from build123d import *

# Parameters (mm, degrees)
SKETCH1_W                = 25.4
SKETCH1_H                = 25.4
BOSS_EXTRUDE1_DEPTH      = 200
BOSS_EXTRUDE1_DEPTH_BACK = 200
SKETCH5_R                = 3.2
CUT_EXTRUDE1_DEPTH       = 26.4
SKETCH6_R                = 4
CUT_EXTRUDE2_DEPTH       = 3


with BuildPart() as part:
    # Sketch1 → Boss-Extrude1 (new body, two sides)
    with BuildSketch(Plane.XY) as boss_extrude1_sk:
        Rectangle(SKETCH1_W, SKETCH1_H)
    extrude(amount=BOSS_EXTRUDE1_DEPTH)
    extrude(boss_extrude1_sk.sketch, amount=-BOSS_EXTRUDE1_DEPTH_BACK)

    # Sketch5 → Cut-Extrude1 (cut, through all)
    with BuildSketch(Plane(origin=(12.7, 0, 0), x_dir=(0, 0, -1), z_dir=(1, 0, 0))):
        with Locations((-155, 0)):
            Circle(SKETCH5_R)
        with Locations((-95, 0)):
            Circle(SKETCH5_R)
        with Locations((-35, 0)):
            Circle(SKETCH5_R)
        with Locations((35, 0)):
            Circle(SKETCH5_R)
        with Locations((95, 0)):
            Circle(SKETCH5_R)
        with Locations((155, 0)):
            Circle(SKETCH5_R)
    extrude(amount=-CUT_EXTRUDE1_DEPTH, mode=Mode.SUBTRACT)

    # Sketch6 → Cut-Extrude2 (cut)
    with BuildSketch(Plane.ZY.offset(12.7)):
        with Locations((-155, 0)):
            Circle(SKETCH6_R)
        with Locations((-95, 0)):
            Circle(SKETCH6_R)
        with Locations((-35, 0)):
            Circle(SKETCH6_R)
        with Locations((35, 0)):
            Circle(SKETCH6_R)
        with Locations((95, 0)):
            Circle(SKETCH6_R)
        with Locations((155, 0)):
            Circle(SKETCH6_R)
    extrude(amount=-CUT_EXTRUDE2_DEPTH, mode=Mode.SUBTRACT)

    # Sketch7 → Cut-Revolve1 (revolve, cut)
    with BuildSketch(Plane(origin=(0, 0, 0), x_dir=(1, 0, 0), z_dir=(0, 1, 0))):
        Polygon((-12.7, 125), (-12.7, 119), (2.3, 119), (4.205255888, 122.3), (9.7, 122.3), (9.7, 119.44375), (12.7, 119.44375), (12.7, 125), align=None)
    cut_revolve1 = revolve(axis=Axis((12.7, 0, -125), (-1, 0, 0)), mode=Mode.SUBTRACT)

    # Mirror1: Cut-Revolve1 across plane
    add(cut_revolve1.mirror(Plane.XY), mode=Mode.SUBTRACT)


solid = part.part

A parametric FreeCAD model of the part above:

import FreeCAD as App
import Part
import Sketcher

V = App.Vector
Q = App.Units.Quantity


def add_polygon(sketch, points):
    """Adds a closed chain of lines whose ends are joined by coincident constraints."""
    first, n = sketch.GeometryCount, len(points)
    for a, b in zip(points, points[1:] + points[:1]):
        sketch.addGeometry(Part.LineSegment(App.Vector(*a, 0), App.Vector(*b, 0)), False)
    for i in range(n):
        sketch.addConstraint(Sketcher.Constraint("Coincident", first + i, 2, first + (i + 1) % n, 1))

doc = App.newDocument("Part")
params = doc.addObject("Spreadsheet::Sheet", "Params")
for row, (alias, value) in enumerate([
    ("sketch1_width", "25.4 mm"),
    ("pad1_length", "200 mm"),
    ("pad1_length2", "200 mm"),
    ("sketch2_diameter", "6.4 mm"),
    ("sketch3_diameter", "8 mm"),
    ("pocket2_length", "3 mm"),
    ("sketch4_width", "15 mm"),
    ("sketch4_width2", "3 mm"),
    ("sketch4_height", "6 mm"),
    ("sketch4_width3", "25.4 mm"),
    ("groove_angle", "360 deg"),
], start=1):
    params.set(f"A{row}", alias)
    params.set(f"B{row}", "=" + value)
    params.setAlias(f"B{row}", alias)

body = doc.addObject("PartDesign::Body", "Body")

# Sketch on XY plane
sketch1 = body.newObject("Sketcher::SketchObject", "Sketch")
sketch1.AttachmentSupport = (doc.getObject("XY_Plane"), [""])
sketch1.MapMode = "FlatFace"
add_polygon(sketch1, [(-12.7, 12.7), (-12.7, -12.7), (12.7, -12.7), (12.7, 12.7)])  # lines 0-3
sketch1.addConstraint(Sketcher.Constraint("Vertical", 0))
sketch1.addConstraint(Sketcher.Constraint("Horizontal", 1))
sketch1.addConstraint(Sketcher.Constraint("Vertical", 2))
sketch1.addConstraint(Sketcher.Constraint("Horizontal", 3))
sketch1.addConstraint(Sketcher.Constraint("Symmetric", 0, 2, 2, 2, -1, 1))
sketch1.addConstraint(Sketcher.Constraint("Equal", 3, 0))
sketch1.addConstraint(Sketcher.Constraint("DistanceX", 1, 1, 1, 2, Q("25.4 mm")))
sketch1.setExpression("Constraints[10]", "Params.sketch1_width")
pad1 = body.newObject("PartDesign::Pad", "Pad")
pad1.Profile = sketch1
pad1.Type = "TwoLengths"
pad1.setExpression("Length", "Params.pad1_length")
pad1.setExpression("Length2", "Params.pad1_length2")

# Sketch on YZ plane
sketch2 = body.newObject("Sketcher::SketchObject", "Sketch001")
sketch2.AttachmentSupport = (doc.getObject("YZ_Plane"), [""])
sketch2.MapMode = "FlatFace"
sketch2.AttachmentOffset = App.Placement(V(0, 0, 12.7), App.Rotation())
sketch2.addGeometry(Part.Circle(V(0, 155, 0), V(0, 0, 1), 3.2), False)
sketch2.addGeometry(Part.Circle(V(0, 95, 0), V(0, 0, 1), 3.2), False)
sketch2.addGeometry(Part.Circle(V(0, 35, 0), V(0, 0, 1), 3.2), False)
sketch2.addGeometry(Part.Circle(V(0, -35, 0), V(0, 0, 1), 3.2), False)
sketch2.addGeometry(Part.Circle(V(0, -95, 0), V(0, 0, 1), 3.2), False)
sketch2.addGeometry(Part.Circle(V(0, -155, 0), V(0, 0, 1), 3.2), False)
sketch2.addConstraint(Sketcher.Constraint("Equal", 0, 1))
sketch2.addConstraint(Sketcher.Constraint("Equal", 1, 2))
sketch2.addConstraint(Sketcher.Constraint("Equal", 2, 3))
sketch2.addConstraint(Sketcher.Constraint("Equal", 3, 4))
sketch2.addConstraint(Sketcher.Constraint("Equal", 4, 5))
sketch2.addConstraint(Sketcher.Constraint("Symmetric", 2, 3, 3, 3, -1, 1))
sketch2.addConstraint(Sketcher.Constraint("Symmetric", 1, 3, 4, 3, -1, 1))
sketch2.addConstraint(Sketcher.Constraint("Symmetric", 0, 3, 5, 3, -1, 1))
sketch2.addConstraint(Sketcher.Constraint("PointOnObject", 0, 3, -2))
sketch2.addConstraint(Sketcher.Constraint("PointOnObject", 1, 3, -2))
sketch2.addConstraint(Sketcher.Constraint("PointOnObject", 2, 3, -2))
sketch2.addConstraint(Sketcher.Constraint("Diameter", 0, Q("6.4 mm")))
sketch2.addConstraint(Sketcher.Constraint("DistanceY", -1, 1, 0, 3, Q("155 mm")))
sketch2.addConstraint(Sketcher.Constraint("DistanceY", -1, 1, 1, 3, Q("95 mm")))
sketch2.addConstraint(Sketcher.Constraint("DistanceY", -1, 1, 2, 3, Q("35 mm")))
sketch2.setExpression("Constraints[11]", "Params.sketch2_diameter")
pocket1 = body.newObject("PartDesign::Pocket", "Pocket")
pocket1.Profile = sketch2
pocket1.Type = "ThroughAll"

# Sketch on YZ plane
sketch3 = body.newObject("Sketcher::SketchObject", "Sketch002")
sketch3.AttachmentSupport = (doc.getObject("YZ_Plane"), [""])
sketch3.MapMode = "FlatFace"
sketch3.AttachmentOffset = App.Placement(V(0, 0, -12.7), App.Rotation())
sketch3.addGeometry(Part.Circle(V(0, -155, 0), V(0, 0, 1), 4), False)
sketch3.addGeometry(Part.Circle(V(0, -95, 0), V(0, 0, 1), 4), False)
sketch3.addGeometry(Part.Circle(V(0, -35, 0), V(0, 0, 1), 4), False)
sketch3.addGeometry(Part.Circle(V(0, 35, 0), V(0, 0, 1), 4), False)
sketch3.addGeometry(Part.Circle(V(0, 95, 0), V(0, 0, 1), 4), False)
sketch3.addGeometry(Part.Circle(V(0, 155, 0), V(0, 0, 1), 4), False)
sketch3.addConstraint(Sketcher.Constraint("Equal", 0, 1))
sketch3.addConstraint(Sketcher.Constraint("Equal", 1, 2))
sketch3.addConstraint(Sketcher.Constraint("Equal", 2, 3))
sketch3.addConstraint(Sketcher.Constraint("Equal", 3, 4))
sketch3.addConstraint(Sketcher.Constraint("Equal", 4, 5))
sketch3.addConstraint(Sketcher.Constraint("Symmetric", 2, 3, 3, 3, -1, 1))
sketch3.addConstraint(Sketcher.Constraint("Symmetric", 1, 3, 4, 3, -1, 1))
sketch3.addConstraint(Sketcher.Constraint("Symmetric", 0, 3, 5, 3, -1, 1))
sketch3.addConstraint(Sketcher.Constraint("PointOnObject", 0, 3, -2))
sketch3.addConstraint(Sketcher.Constraint("PointOnObject", 1, 3, -2))
sketch3.addConstraint(Sketcher.Constraint("PointOnObject", 2, 3, -2))
sketch3.addConstraint(Sketcher.Constraint("Diameter", 0, Q("8 mm")))
sketch3.addConstraint(Sketcher.Constraint("DistanceY", 0, 3, -1, 1, Q("155 mm")))
sketch3.addConstraint(Sketcher.Constraint("DistanceY", 1, 3, -1, 1, Q("95 mm")))
sketch3.addConstraint(Sketcher.Constraint("DistanceY", 2, 3, -1, 1, Q("35 mm")))
sketch3.setExpression("Constraints[11]", "Params.sketch3_diameter")
pocket2 = body.newObject("PartDesign::Pocket", "Pocket001")
pocket2.Profile = sketch3
pocket2.setExpression("Length", "Params.pocket2_length")
pocket2.Reversed = True

# Sketch on XZ plane
sketch4 = body.newObject("Sketcher::SketchObject", "Sketch003")
sketch4.AttachmentSupport = (doc.getObject("XZ_Plane"), [""])
sketch4.MapMode = "FlatFace"
add_polygon(sketch4, [(-12.7, -125), (-12.7, -119), (2.3, -119), (4.205256, -122.3), (9.7, -122.3), (9.7, -119.44375), (12.7, -119.44375), (12.7, -125)])  # lines 0-7
sketch4.addGeometry(Part.LineSegment(V(12.7, -125, 0), V(-12.7, -125, 0)), True)  # axis
sketch4.addConstraint(Sketcher.Constraint("Vertical", 0))
sketch4.addConstraint(Sketcher.Constraint("Horizontal", 1))
sketch4.addConstraint(Sketcher.Constraint("Horizontal", 3))
sketch4.addConstraint(Sketcher.Constraint("Vertical", 4))
sketch4.addConstraint(Sketcher.Constraint("Horizontal", 5))
sketch4.addConstraint(Sketcher.Constraint("Vertical", 6))
sketch4.addConstraint(Sketcher.Constraint("Horizontal", 7))
sketch4.addConstraint(Sketcher.Constraint("Horizontal", 8))
sketch4.addConstraint(Sketcher.Constraint("Coincident", 8, 1, 6, 2))
sketch4.addConstraint(Sketcher.Constraint("Vertical", 0, 2, 8, 2))
sketch4.addConstraint(Sketcher.Constraint("DistanceX", 1, 1, 1, 2, Q("15 mm")))
sketch4.addConstraint(Sketcher.Constraint("DistanceX", 5, 1, 5, 2, Q("3 mm")))
sketch4.addConstraint(Sketcher.Constraint("DistanceY", 0, 1, 0, 2, Q("6 mm")))
sketch4.addConstraint(Sketcher.Constraint("Angle", 2, Q("-60 deg")))
sketch4.addConstraint(Sketcher.Constraint("DistanceX", 7, 2, 7, 1, Q("25.4 mm")))
sketch4.addConstraint(Sketcher.Constraint("DistanceY", 0, 2, -1, 1, Q("119 mm")))
sketch4.addConstraint(Sketcher.Constraint("DistanceX", 0, 2, -1, 1, Q("12.7 mm")))
sketch4.addConstraint(Sketcher.Constraint("DistanceY", 2, 2, -1, 1, Q("122.3 mm")))
sketch4.addConstraint(Sketcher.Constraint("DistanceY", 4, 1, 4, 2, Q("2.85625 mm")))
sketch4.setExpression("Constraints[18]", "Params.sketch4_width")
sketch4.setExpression("Constraints[19]", "Params.sketch4_width2")
sketch4.setExpression("Constraints[20]", "Params.sketch4_height")
sketch4.setExpression("Constraints[22]", "Params.sketch4_width3")
groove = body.newObject("PartDesign::Groove", "Groove")
groove.Profile = sketch4
groove.ReferenceAxis = (sketch4, ["Axis0"])
groove.setExpression("Angle", "Params.groove_angle")
doc.recompute()

mirrored = body.newObject("PartDesign::Mirrored", "Mirrored")
mirrored.Originals = [groove]
mirrored.MirrorPlane = (doc.getObject("XY_Plane"), [""])
body.Tip = mirrored

doc.recompute()
